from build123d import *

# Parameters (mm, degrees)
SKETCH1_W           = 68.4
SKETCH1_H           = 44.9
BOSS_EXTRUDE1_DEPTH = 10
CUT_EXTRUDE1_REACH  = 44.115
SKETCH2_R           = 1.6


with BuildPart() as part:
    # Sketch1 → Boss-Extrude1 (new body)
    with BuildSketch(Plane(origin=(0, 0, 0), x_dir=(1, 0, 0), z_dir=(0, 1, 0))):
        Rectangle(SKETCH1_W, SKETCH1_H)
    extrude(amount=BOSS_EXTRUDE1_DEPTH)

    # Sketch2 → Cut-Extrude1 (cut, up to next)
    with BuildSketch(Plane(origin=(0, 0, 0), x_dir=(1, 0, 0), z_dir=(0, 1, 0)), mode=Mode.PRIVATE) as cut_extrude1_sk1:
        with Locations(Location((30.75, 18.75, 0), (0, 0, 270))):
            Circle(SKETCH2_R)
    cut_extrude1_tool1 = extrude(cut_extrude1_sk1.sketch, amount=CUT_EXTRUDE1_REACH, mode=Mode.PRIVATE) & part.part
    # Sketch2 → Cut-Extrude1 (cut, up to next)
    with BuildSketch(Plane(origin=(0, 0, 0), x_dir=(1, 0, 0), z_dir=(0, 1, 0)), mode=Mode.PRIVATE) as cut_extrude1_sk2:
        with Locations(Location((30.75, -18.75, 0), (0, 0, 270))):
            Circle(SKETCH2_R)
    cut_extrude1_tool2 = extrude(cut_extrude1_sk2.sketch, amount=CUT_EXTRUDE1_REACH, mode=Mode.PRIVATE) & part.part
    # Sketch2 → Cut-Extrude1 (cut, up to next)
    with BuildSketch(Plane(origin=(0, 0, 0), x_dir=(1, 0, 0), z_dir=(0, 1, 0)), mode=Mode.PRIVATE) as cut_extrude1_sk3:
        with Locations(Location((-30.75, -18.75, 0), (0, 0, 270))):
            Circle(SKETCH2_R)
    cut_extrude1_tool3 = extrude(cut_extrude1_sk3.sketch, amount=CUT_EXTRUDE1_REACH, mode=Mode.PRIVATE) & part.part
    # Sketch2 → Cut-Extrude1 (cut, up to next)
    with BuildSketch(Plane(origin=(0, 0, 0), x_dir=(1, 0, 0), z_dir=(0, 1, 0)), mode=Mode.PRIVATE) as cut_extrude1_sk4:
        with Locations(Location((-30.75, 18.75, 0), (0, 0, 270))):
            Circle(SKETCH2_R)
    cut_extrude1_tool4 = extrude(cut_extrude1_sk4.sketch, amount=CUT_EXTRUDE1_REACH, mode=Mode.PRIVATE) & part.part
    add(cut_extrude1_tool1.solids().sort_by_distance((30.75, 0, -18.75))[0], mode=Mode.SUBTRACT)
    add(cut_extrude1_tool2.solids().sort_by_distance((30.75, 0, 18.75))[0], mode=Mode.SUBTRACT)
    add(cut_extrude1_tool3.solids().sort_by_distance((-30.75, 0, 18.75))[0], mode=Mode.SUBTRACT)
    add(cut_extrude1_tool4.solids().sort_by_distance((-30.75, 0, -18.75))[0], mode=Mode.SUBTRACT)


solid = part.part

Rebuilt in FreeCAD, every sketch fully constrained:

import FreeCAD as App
import Part
import Sketcher

V = App.Vector
Q = App.Units.Quantity


def add_polygon(sketch, points):
    """Adds a closed chain of lines whose ends are joined by coincident constraints."""
    first, n = sketch.GeometryCount, len(points)
    for a, b in zip(points, points[1:] + points[:1]):
        sketch.addGeometry(Part.LineSegment(App.Vector(*a, 0), App.Vector(*b, 0)), False)
    for i in range(n):
        sketch.addConstraint(Sketcher.Constraint("Coincident", first + i, 2, first + (i + 1) % n, 1))

doc = App.newDocument("Part")
body = doc.addObject("PartDesign::Body", "Body")

# Sketch on XZ plane
sketch1 = body.newObject("Sketcher::SketchObject", "Sketch")
sketch1.AttachmentSupport = (doc.getObject("XZ_Plane"), [""])
sketch1.MapMode = "FlatFace"
add_polygon(sketch1, [(-34.2, -22.45), (-34.2, 22.45), (34.2, 22.45), (34.2, -22.45)])  # lines 0-3
sketch1.addConstraint(Sketcher.Constraint("Vertical", 0))
sketch1.addConstraint(Sketcher.Constraint("Horizontal", 1))
sketch1.addConstraint(Sketcher.Constraint("Vertical", 2))
sketch1.addConstraint(Sketcher.Constraint("Horizontal", 3))
sketch1.addConstraint(Sketcher.Constraint("Symmetric", 0, 2, 2, 2, -1, 1))
sketch1.addConstraint(Sketcher.Constraint("DistanceX", 1, 1, 1, 2, Q("68.4 mm")))
sketch1.addConstraint(Sketcher.Constraint("DistanceY", 0, 1, 0, 2, Q("44.9 mm")))
pad1 = body.newObject("PartDesign::Pad", "Pad")
pad1.Profile = sketch1
pad1.Length = 10
pad1.Reversed = True

# Sketch on XZ plane
sketch2 = body.newObject("Sketcher::SketchObject", "Sketch001")
sketch2.AttachmentSupport = (doc.getObject("XZ_Plane"), [""])
sketch2.MapMode = "FlatFace"
sketch2.addGeometry(Part.Circle(V(30.75, -18.75, 0), V(0, 0, 1), 1.6), False)
sketch2.addConstraint(Sketcher.Constraint("Diameter", 0, Q("3.2 mm")))
sketch2.addConstraint(Sketcher.Constraint("DistanceX", -1, 1, 0, 3, Q("30.75 mm")))
sketch2.addConstraint(Sketcher.Constraint("DistanceY", 0, 3, -1, 1, Q("18.75 mm")))
pocket1 = body.newObject("PartDesign::Pocket", "Pocket")
pocket1.Profile = sketch2
pocket1.Type = "UpToFirst"

# Sketch on XZ plane
sketch3 = body.newObject("Sketcher::SketchObject", "Sketch002")
sketch3.AttachmentSupport = (doc.getObject("XZ_Plane"), [""])
sketch3.MapMode = "FlatFace"
sketch3.addGeometry(Part.Circle(V(30.75, 18.75, 0), V(0, 0, 1), 1.6), False)
sketch3.addConstraint(Sketcher.Constraint("Diameter", 0, Q("3.2 mm")))
sketch3.addConstraint(Sketcher.Constraint("DistanceX", -1, 1, 0, 3, Q("30.75 mm")))
sketch3.addConstraint(Sketcher.Constraint("DistanceY", -1, 1, 0, 3, Q("18.75 mm")))
pocket2 = body.newObject("PartDesign::Pocket", "Pocket001")
pocket2.Profile = sketch3
pocket2.Type = "UpToFirst"

# Sketch on XZ plane
sketch4 = body.newObject("Sketcher::SketchObject", "Sketch003")
sketch4.AttachmentSupport = (doc.getObject("XZ_Plane"), [""])
sketch4.MapMode = "FlatFace"
sketch4.addGeometry(Part.Circle(V(-30.75, 18.75, 0), V(0, 0, 1), 1.6), False)
sketch4.addConstraint(Sketcher.Constraint("Diameter", 0, Q("3.2 mm")))
sketch4.addConstraint(Sketcher.Constraint("DistanceX", 0, 3, -1, 1, Q("30.75 mm")))
sketch4.addConstraint(Sketcher.Constraint("DistanceY", -1, 1, 0, 3, Q("18.75 mm")))
pocket3 = body.newObject("PartDesign::Pocket", "Pocket002")
pocket3.Profile = sketch4
pocket3.Type = "UpToFirst"

# Sketch on XZ plane
sketch5 = body.newObject("Sketcher::SketchObject", "Sketch004")
sketch5.AttachmentSupport = (doc.getObject("XZ_Plane"), [""])
sketch5.MapMode = "FlatFace"
sketch5.addGeometry(Part.Circle(V(-30.75, -18.75, 0), V(0, 0, 1), 1.6), False)
sketch5.addConstraint(Sketcher.Constraint("Diameter", 0, Q("3.2 mm")))
sketch5.addConstraint(Sketcher.Constraint("DistanceX", 0, 3, -1, 1, Q("30.75 mm")))
sketch5.addConstraint(Sketcher.Constraint("DistanceY", 0, 3, -1, 1, Q("18.75 mm")))
pocket4 = body.newObject("PartDesign::Pocket", "Pocket003")
pocket4.Profile = sketch5
pocket4.Type = "UpToFirst"

doc.recompute()
